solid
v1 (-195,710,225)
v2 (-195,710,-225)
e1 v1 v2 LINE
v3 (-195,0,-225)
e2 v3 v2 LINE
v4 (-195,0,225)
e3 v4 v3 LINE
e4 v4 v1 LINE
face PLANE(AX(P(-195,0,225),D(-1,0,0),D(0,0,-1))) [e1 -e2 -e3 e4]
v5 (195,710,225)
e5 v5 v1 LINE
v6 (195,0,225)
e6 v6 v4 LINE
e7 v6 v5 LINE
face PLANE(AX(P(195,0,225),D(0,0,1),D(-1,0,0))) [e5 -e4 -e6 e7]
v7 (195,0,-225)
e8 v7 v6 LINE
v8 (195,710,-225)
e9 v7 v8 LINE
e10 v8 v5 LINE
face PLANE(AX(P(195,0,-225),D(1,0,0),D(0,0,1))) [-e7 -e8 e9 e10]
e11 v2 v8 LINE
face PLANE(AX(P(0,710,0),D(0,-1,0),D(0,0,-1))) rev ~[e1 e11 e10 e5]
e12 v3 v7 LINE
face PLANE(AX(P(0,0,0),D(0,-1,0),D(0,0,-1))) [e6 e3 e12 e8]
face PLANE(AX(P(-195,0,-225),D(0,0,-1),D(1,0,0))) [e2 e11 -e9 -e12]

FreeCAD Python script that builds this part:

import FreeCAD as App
import Part
import Sketcher

V = App.Vector

doc = App.newDocument("Part")
body = doc.addObject("PartDesign::Body", "Body")

sketch1 = doc.addObject("Sketcher::SketchObject", "Sketch")
body.addObject(sketch1)
sketch1.AttachmentSupport = (doc.XZ_Plane, [""])
sketch1.MapMode = "FlatFace"
sketch1.addGeometry([
    Part.LineSegment(V(-195, 225, 0), V(-195, -225, 0)),
    Part.LineSegment(V(-195, -225, 0), V(195, -225, 0)),
    Part.LineSegment(V(195, -225, 0), V(195, 225, 0)),
    Part.LineSegment(V(195, 225, 0), V(-195, 225, 0)),
], False)
sketch1.addConstraint([
    Sketcher.Constraint("Coincident", 0, 2, 1, 1),
    Sketcher.Constraint("Coincident", 1, 2, 2, 1),
    Sketcher.Constraint("Coincident", 2, 2, 3, 1),
    Sketcher.Constraint("Coincident", 3, 2, 0, 1),
    Sketcher.Constraint("Vertical", 0),
    Sketcher.Constraint("Horizontal", 1),
    Sketcher.Constraint("Vertical", 2),
    Sketcher.Constraint("Horizontal", 3),
    Sketcher.Constraint("Symmetric", 0, 2, 2, 2, -1, 1),
    Sketcher.Constraint("DistanceX", 1, 1, 1, 2, 390.0),
    Sketcher.Constraint("DistanceY", 0, 2, 0, 1, 450.0),
])
pad1 = doc.addObject("PartDesign::Pad", "Pad")
body.addObject(pad1)
pad1.Profile = sketch1
pad1.Length = 710
pad1.Reversed = True

doc.recompute()
